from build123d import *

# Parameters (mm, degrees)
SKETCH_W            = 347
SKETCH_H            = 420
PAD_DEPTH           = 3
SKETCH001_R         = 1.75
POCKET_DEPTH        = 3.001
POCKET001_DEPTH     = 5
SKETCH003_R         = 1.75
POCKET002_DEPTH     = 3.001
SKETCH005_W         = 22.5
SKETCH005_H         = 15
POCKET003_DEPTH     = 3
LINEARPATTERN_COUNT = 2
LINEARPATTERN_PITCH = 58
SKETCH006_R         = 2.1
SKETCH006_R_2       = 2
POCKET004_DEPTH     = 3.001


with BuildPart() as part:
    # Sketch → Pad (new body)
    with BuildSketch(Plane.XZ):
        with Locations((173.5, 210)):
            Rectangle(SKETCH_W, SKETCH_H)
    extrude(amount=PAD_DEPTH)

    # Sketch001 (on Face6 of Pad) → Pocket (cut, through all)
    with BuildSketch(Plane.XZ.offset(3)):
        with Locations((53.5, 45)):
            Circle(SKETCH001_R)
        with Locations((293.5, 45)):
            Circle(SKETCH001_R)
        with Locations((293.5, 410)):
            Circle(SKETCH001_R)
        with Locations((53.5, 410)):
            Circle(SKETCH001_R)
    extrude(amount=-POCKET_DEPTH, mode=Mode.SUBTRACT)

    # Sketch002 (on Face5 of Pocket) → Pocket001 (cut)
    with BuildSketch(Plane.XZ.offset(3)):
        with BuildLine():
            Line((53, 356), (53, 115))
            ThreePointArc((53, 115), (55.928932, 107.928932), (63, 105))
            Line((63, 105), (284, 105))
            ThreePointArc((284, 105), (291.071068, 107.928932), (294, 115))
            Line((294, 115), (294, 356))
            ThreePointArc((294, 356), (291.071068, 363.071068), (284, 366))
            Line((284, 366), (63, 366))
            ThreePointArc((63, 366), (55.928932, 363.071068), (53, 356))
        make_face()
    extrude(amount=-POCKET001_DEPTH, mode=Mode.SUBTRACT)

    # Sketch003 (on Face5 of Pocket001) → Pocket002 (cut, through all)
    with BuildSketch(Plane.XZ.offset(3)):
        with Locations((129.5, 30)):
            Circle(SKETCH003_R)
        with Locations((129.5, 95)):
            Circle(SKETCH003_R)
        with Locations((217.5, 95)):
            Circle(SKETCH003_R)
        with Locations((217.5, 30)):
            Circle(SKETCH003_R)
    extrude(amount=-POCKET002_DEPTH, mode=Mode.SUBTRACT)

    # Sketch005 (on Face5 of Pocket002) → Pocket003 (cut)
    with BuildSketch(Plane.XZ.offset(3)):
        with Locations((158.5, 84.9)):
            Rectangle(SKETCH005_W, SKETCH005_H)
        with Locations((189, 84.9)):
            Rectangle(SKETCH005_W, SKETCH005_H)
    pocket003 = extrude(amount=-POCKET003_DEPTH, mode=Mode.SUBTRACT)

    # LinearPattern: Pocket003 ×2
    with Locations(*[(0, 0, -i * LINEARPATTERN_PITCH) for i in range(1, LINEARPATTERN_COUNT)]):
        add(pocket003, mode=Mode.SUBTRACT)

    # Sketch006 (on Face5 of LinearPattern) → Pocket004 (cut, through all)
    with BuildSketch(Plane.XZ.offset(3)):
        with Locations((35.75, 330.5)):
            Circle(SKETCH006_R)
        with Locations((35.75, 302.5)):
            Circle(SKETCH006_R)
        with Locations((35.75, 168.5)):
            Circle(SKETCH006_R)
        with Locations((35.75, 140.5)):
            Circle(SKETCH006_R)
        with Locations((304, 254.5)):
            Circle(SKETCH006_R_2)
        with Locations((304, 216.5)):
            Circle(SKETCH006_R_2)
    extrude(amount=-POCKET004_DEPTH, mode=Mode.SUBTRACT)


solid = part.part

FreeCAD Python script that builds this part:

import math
import FreeCAD as App
import Part
import Sketcher
Q = App.Units.Quantity


def add_polygon(sketch, points):
    """Adds a closed chain of lines whose ends are joined by coincident constraints."""
    first, n = sketch.GeometryCount, len(points)
    for a, b in zip(points, points[1:] + points[:1]):
        sketch.addGeometry(Part.LineSegment(App.Vector(*a, 0), App.Vector(*b, 0)), False)
    for i in range(n):
        sketch.addConstraint(Sketcher.Constraint("Coincident", first + i, 2, first + (i + 1) % n, 1))

doc = App.newDocument("Part")
body = doc.addObject("PartDesign::Body", "Body")

sketch1 = body.newObject("Sketcher::SketchObject", "Sketch")
sketch1.AttachmentSupport = (doc.getObject("XZ_Plane"), [""])
sketch1.MapMode = "FlatFace"
add_polygon(sketch1, [(0, 420), (0, 0), (347, 0), (347, 420)])
sketch1.addConstraint([
    Sketcher.Constraint("Vertical", 0),
    Sketcher.Constraint("Horizontal", 1),
    Sketcher.Constraint("Vertical", 2),
    Sketcher.Constraint("Horizontal", 3),
    Sketcher.Constraint("Coincident", 0, 2, -1, 1),
    Sketcher.Constraint("DistanceX", 1, 1, 1, 2, Q("347 mm")),
    Sketcher.Constraint("DistanceY", 0, 2, 0, 1, Q("420 mm")),
])
pad1 = body.newObject("PartDesign::Pad", "Pad")
pad1.Profile = sketch1
pad1.Length = 3

sketch2 = body.newObject("Sketcher::SketchObject", "Sketch001")
sketch2.AttachmentSupport = (doc.getObject("XZ_Plane"), [""])
sketch2.MapMode = "FlatFace"
sketch2.AttachmentOffset = App.Placement(App.Vector(0, 0, 3), App.Rotation())
sketch2.addGeometry([
    Part.Circle(App.Vector(53.5, 45, 0), App.Vector(0, 0, 1), 1.75),
    Part.Circle(App.Vector(293.5, 45, 0), App.Vector(0, 0, 1), 1.75),
    Part.Circle(App.Vector(293.5, 410, 0), App.Vector(0, 0, 1), 1.75),
    Part.Circle(App.Vector(53.5, 410, 0), App.Vector(0, 0, 1), 1.75),
], False)
sketch2.addConstraint([
    Sketcher.Constraint("Equal", 0, 1),
    Sketcher.Constraint("Equal", 1, 2),
    Sketcher.Constraint("Equal", 2, 3),
    Sketcher.Constraint("Horizontal", 0, 3, 1, 3),
    Sketcher.Constraint("Horizontal", 2, 3, 3, 3),
    Sketcher.Constraint("Vertical", 1, 3, 2, 3),
    Sketcher.Constraint("Vertical", 0, 3, 3, 3),
    Sketcher.Constraint("Diameter", 0, Q("3.5 mm")),
    Sketcher.Constraint("DistanceY", -1, 1, 0, 3, Q("45 mm")),
    Sketcher.Constraint("DistanceY", -1, 1, 2, 3, Q("410 mm")),
    Sketcher.Constraint("DistanceX", 0, 3, 1, 3, Q("240 mm")),
    Sketcher.Constraint("DistanceX", -1, 1, 0, 3, Q("53.5 mm")),
])
pocket1 = body.newObject("PartDesign::Pocket", "Pocket")
pocket1.Profile = sketch2
pocket1.Type = "ThroughAll"

sketch3 = body.newObject("Sketcher::SketchObject", "Sketch002")
sketch3.AttachmentSupport = (doc.getObject("XZ_Plane"), [""])
sketch3.MapMode = "FlatFace"
sketch3.AttachmentOffset = App.Placement(App.Vector(0, 0, 3), App.Rotation())
sketch3.addGeometry([
    Part.LineSegment(App.Vector(53, 356, 0), App.Vector(53, 115, 0)),
    Part.ArcOfCircle(Part.Circle(App.Vector(62.999999, 114.999999, 0), App.Vector(0, 0, 1), 9.999999), math.radians(179.999996), math.radians(270.000004)),
    Part.LineSegment(App.Vector(63, 105, 0), App.Vector(284, 105, 0)),
    Part.ArcOfCircle(Part.Circle(App.Vector(284.000001, 114.999999, 0), App.Vector(0, 0, 1), 9.999999), math.radians(-90.000004), math.radians(0.000004)),
    Part.LineSegment(App.Vector(294, 115, 0), App.Vector(294, 356, 0)),
    Part.ArcOfCircle(Part.Circle(App.Vector(284.000001, 356.000001, 0), App.Vector(0, 0, 1), 9.999999), math.radians(-0.000004), math.radians(90.000004)),
    Part.LineSegment(App.Vector(284, 366, 0), App.Vector(63, 366, 0)),
    Part.ArcOfCircle(Part.Circle(App.Vector(62.999999, 356.000001, 0), App.Vector(0, 0, 1), 9.999999), math.radians(89.999996), math.radians(180.000004)),
], False)
sketch3.addConstraint([
    Sketcher.Constraint("Tangent", 0, 2, 1, 1),
    Sketcher.Constraint("Tangent", 1, 2, 2, 1),
    Sketcher.Constraint("Tangent", 2, 2, 3, 1),
    Sketcher.Constraint("Tangent", 3, 2, 4, 1),
    Sketcher.Constraint("Tangent", 4, 2, 5, 1),
    Sketcher.Constraint("Tangent", 5, 2, 6, 1),
    Sketcher.Constraint("Tangent", 6, 2, 7, 1),
    Sketcher.Constraint("Tangent", 7, 2, 0, 1),
    Sketcher.Constraint("Vertical", 0),
    Sketcher.Constraint("Horizontal", 2),
    Sketcher.Constraint("Vertical", 4),
    Sketcher.Constraint("Horizontal", 6),
    Sketcher.Constraint("Equal", 1, 3),
    Sketcher.Constraint("Equal", 3, 5),
    Sketcher.Constraint("Equal", 5, 7),
    Sketcher.Constraint("Radius", 1, Q("9.999999 mm")),
    Sketcher.Constraint("DistanceX", 2, 1, 2, 2, Q("221 mm")),
    Sketcher.Constraint("DistanceY", 0, 2, 0, 1, Q("241 mm")),
    Sketcher.Constraint("DistanceX", -1, 1, 1, 3, Q("62.999999 mm")),
    Sketcher.Constraint("DistanceY", -1, 1, 1, 3, Q("114.999999 mm")),
])
pocket2 = body.newObject("PartDesign::Pocket", "Pocket001")
pocket2.Profile = sketch3
pocket2.Length = 5

sketch4 = body.newObject("Sketcher::SketchObject", "Sketch003")
sketch4.AttachmentSupport = (doc.getObject("XZ_Plane"), [""])
sketch4.MapMode = "FlatFace"
sketch4.AttachmentOffset = App.Placement(App.Vector(0, 0, 3), App.Rotation())
sketch4.addGeometry([
    Part.Circle(App.Vector(129.5, 30, 0), App.Vector(0, 0, 1), 1.75),
    Part.Circle(App.Vector(129.5, 95, 0), App.Vector(0, 0, 1), 1.75),
    Part.Circle(App.Vector(217.5, 95, 0), App.Vector(0, 0, 1), 1.75),
    Part.Circle(App.Vector(217.5, 30, 0), App.Vector(0, 0, 1), 1.75),
], False)
sketch4.addConstraint([
    Sketcher.Constraint("Equal", 0, 1),
    Sketcher.Constraint("Equal", 1, 2),
    Sketcher.Constraint("Equal", 2, 3),
    Sketcher.Constraint("Horizontal", 1, 3, 2, 3),
    Sketcher.Constraint("Horizontal", 0, 3, 3, 3),
    Sketcher.Constraint("Vertical", 0, 3, 1, 3),
    Sketcher.Constraint("Vertical", 2, 3, 3, 3),
    Sketcher.Constraint("Diameter", 0, Q("3.5 mm")),
    Sketcher.Constraint("DistanceY", -1, 1, 0, 3, Q("30 mm")),
    Sketcher.Constraint("DistanceY", -1, 1, 1, 3, Q("95 mm")),
    Sketcher.Constraint("DistanceX", 1, 3, 2, 3, Q("88 mm")),
    Sketcher.Constraint("DistanceX", -1, 1, 0, 3, Q("129.5 mm")),
])
pocket3 = body.newObject("PartDesign::Pocket", "Pocket002")
pocket3.Profile = sketch4
pocket3.Type = "ThroughAll"

sketch5 = body.newObject("Sketcher::SketchObject", "Sketch004")
sketch5.AttachmentSupport = (doc.getObject("XZ_Plane"), [""])
sketch5.MapMode = "FlatFace"
sketch5.AttachmentOffset = App.Placement(App.Vector(0, 0, 3), App.Rotation())
add_polygon(sketch5, [(147.25, 92.4), (147.25, 77.4), (169.75, 77.4), (169.75, 92.4)])
add_polygon(sketch5, [(177.75, 92.4), (177.75, 77.4), (200.25, 77.4), (200.25, 92.4)])
sketch5.addConstraint([
    Sketcher.Constraint("Vertical", 0),
    Sketcher.Constraint("Horizontal", 1),
    Sketcher.Constraint("Vertical", 2),
    Sketcher.Constraint("Horizontal", 3),
    Sketcher.Constraint("Vertical", 4),
    Sketcher.Constraint("Horizontal", 5),
    Sketcher.Constraint("Vertical", 6),
    Sketcher.Constraint("Horizontal", 7),
    Sketcher.Constraint("Horizontal", 1, 2, 4, 2),
    Sketcher.Constraint("Horizontal", 3, 2, 6, 2),
    Sketcher.Constraint("Equal", 3, 5),
    Sketcher.Constraint("DistanceY", 0, 2, 0, 1, Q("15 mm")),
    Sketcher.Constraint("DistanceX", 1, 1, 1, 2, Q("22.5 mm")),
    Sketcher.Constraint("DistanceX", 1, 2, 4, 2, Q("8 mm")),
    Sketcher.Constraint("DistanceY", -1, 1, 0, 2, Q("77.4 mm")),
    Sketcher.Constraint("DistanceX", -1, 1, 0, 2, Q("147.25 mm")),
])
pocket4 = body.newObject("PartDesign::Pocket", "Pocket003")
pocket4.Profile = sketch5
pocket4.Length = 3
doc.recompute()

linearpattern = body.newObject("PartDesign::LinearPattern", "LinearPattern")
linearpattern.Originals = [pocket4]
linearpattern.Direction = (doc.getObject("Z_Axis"), [""])
linearpattern.Mode = "offset"
linearpattern.Offset = 58
linearpattern.Occurrences = 2
linearpattern.Reversed = True
body.Tip = linearpattern

sketch6 = body.newObject("Sketcher::SketchObject", "Sketch005")
sketch6.AttachmentSupport = (doc.getObject("XZ_Plane"), [""])
sketch6.MapMode = "FlatFace"
sketch6.AttachmentOffset = App.Placement(App.Vector(0, 0, 3), App.Rotation())
sketch6.addGeometry([
    Part.Circle(App.Vector(35.75, 330.5, 0), App.Vector(0, 0, 1), 2.1),
    Part.Circle(App.Vector(35.75, 302.5, 0), App.Vector(0, 0, 1), 2.1),
    Part.Circle(App.Vector(35.75, 168.5, 0), App.Vector(0, 0, 1), 2.1),
    Part.Circle(App.Vector(35.75, 140.5, 0), App.Vector(0, 0, 1), 2.1),
    Part.Circle(App.Vector(304, 254.5, 0), App.Vector(0, 0, 1), 2),
    Part.Circle(App.Vector(304, 216.5, 0), App.Vector(0, 0, 1), 2),
], False)
sketch6.addConstraint([
    Sketcher.Constraint("Equal", 0, 1),
    Sketcher.Constraint("Equal", 1, 2),
    Sketcher.Constraint("Equal", 2, 3),
    Sketcher.Constraint("Equal", 4, 5),
    Sketcher.Constraint("Vertical", 0, 3, 1, 3),
    Sketcher.Constraint("Vertical", 1, 3, 2, 3),
    Sketcher.Constraint("Vertical", 2, 3, 3, 3),
    Sketcher.Constraint("Vertical", 4, 3, 5, 3),
    Sketcher.Constraint("Diameter", 4, Q("4 mm")),
    Sketcher.Constraint("Diameter", 0, Q("4.2 mm")),
    Sketcher.Constraint("DistanceX", -1, 1, 4, 3, Q("304 mm")),
    Sketcher.Constraint("DistanceY", 1, 3, 0, 3, Q("28 mm")),
    Sketcher.Constraint("DistanceY", 2, 3, 1, 3, Q("134 mm")),
    Sketcher.Constraint("DistanceY", 3, 3, 2, 3, Q("28 mm")),
    Sketcher.Constraint("DistanceY", 4, 3, 1, 3, Q("48 mm")),
    Sketcher.Constraint("DistanceY", 5, 3, 4, 3, Q("38 mm")),
    Sketcher.Constraint("DistanceY", -1, 1, 0, 3, Q("330.5 mm")),
    Sketcher.Constraint("DistanceX", -1, 1, 0, 3, Q("35.75 mm")),
])
pocket5 = body.newObject("PartDesign::Pocket", "Pocket004")
pocket5.Profile = sketch6
pocket5.Type = "ThroughAll"

doc.recompute()
